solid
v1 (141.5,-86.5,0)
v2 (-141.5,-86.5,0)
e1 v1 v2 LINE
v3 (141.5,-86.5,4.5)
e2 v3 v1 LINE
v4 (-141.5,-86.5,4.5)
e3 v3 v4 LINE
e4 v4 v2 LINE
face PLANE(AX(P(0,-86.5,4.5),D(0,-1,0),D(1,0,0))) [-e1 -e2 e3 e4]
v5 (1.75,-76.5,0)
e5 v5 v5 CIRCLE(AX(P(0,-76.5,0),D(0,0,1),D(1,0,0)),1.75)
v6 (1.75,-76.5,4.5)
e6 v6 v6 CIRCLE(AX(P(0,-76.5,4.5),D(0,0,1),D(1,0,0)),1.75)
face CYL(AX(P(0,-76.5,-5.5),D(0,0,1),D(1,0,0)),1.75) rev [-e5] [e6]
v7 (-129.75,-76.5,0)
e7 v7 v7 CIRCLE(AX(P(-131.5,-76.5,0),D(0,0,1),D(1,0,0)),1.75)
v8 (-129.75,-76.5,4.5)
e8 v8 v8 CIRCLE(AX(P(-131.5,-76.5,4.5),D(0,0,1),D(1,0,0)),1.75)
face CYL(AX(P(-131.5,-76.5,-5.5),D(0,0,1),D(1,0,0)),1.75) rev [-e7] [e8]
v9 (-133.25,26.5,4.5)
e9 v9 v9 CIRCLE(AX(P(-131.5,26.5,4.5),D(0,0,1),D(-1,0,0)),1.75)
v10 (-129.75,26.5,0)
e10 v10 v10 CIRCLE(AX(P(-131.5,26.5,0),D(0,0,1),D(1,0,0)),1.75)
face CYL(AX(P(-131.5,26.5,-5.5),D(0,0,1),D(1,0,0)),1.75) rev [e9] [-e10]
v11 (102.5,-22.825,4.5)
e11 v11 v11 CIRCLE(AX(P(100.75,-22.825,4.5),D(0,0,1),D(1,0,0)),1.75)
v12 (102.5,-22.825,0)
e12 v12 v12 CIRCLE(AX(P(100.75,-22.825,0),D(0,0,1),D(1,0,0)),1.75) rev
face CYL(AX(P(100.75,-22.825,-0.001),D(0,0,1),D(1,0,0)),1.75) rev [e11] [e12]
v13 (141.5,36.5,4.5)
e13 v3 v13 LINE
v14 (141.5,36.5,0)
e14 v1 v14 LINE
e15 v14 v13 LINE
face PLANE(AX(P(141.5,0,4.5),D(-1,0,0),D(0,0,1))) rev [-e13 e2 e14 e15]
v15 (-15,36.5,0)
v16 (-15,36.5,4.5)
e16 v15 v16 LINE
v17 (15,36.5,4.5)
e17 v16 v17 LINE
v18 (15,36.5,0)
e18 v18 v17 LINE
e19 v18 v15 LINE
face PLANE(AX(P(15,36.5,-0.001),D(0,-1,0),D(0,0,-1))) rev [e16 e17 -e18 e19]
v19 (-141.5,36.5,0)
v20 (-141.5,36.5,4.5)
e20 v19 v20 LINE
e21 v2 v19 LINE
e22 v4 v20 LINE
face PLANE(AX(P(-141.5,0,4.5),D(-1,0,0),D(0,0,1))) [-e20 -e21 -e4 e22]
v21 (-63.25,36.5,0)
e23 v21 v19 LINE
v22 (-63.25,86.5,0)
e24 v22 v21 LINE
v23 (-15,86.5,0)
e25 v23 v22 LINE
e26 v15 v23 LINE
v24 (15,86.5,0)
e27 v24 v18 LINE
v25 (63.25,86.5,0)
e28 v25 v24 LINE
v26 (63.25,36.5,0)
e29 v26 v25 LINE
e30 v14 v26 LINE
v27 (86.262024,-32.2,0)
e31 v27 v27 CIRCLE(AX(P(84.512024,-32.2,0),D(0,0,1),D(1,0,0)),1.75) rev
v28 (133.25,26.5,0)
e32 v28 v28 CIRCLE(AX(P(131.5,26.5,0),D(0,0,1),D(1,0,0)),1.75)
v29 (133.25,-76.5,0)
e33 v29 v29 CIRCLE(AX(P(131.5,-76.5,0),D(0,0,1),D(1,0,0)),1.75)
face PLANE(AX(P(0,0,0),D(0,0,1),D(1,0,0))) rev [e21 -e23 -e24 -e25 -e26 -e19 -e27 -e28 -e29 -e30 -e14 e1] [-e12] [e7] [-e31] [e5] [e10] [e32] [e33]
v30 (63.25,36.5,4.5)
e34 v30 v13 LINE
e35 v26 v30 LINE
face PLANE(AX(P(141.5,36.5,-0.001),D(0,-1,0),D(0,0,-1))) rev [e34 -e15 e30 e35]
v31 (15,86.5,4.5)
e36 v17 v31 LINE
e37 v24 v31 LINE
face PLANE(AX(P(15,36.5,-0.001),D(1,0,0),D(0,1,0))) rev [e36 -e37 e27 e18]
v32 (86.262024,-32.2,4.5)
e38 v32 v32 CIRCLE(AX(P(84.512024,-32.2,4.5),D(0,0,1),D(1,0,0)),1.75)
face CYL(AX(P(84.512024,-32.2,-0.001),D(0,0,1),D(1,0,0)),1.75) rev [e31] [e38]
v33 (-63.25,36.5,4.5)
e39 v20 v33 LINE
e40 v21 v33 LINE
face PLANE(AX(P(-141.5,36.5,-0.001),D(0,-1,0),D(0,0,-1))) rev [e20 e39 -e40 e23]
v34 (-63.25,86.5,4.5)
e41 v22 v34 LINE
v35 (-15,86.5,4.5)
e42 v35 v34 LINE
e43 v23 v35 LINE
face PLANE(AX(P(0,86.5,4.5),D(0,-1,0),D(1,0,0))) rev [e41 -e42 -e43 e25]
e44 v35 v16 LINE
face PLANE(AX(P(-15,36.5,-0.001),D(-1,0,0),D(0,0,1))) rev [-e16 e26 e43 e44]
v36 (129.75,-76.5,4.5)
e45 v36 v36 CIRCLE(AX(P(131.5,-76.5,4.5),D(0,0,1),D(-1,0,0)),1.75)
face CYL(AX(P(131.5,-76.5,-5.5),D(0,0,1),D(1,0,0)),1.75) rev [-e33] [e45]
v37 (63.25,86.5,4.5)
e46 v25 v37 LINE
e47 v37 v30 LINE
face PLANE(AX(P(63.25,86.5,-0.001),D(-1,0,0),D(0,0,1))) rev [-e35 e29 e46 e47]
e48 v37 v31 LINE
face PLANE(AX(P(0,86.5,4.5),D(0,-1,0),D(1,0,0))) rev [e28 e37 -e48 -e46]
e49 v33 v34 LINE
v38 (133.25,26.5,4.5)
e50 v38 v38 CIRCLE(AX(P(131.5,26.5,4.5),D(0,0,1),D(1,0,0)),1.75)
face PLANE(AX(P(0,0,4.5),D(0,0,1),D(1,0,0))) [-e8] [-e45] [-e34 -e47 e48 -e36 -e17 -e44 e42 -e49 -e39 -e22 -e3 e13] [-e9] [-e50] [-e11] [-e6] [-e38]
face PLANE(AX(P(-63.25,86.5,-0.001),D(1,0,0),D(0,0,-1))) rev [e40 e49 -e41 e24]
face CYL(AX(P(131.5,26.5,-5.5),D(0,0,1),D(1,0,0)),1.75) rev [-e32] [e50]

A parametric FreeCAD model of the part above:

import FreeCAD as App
import Part
import Sketcher
from FreeCAD import Vector
Q = App.Units.Quantity


def add_polygon(sketch, points):
    """Adds a closed chain of lines whose ends are joined by coincident constraints."""
    first, n = sketch.GeometryCount, len(points)
    for a, b in zip(points, points[1:] + points[:1]):
        sketch.addGeometry(Part.LineSegment(App.Vector(*a, 0), App.Vector(*b, 0)), False)
    for i in range(n):
        sketch.addConstraint(Sketcher.Constraint("Coincident", first + i, 2, first + (i + 1) % n, 1))

doc = App.newDocument("Part")
params = doc.addObject("Spreadsheet::Sheet", "Params")
for row, (alias, value) in enumerate([
    ("sketch1_width", "283 mm"),
    ("sketch1_height", "173 mm"),
    ("pad1_length", "4.5 mm"),
    ("sketch2_height", "50 mm"),
    ("sketch2_width", "78.25 mm"),
    ("sketch3_height", "50 mm"),
    ("sketch3_width", "78.25 mm"),
    ("sketch4_width", "30 mm"),
    ("sketch4_height", "50 mm"),
    ("sketch5_diameter", "3.5 mm"),
    ("pocket4_length", "10 mm"),
    ("sketch6_diameter", "3.5 mm"),
    ("sketch7_diameter", "3.5 mm"),
], start=1):
    params.set(f"A{row}", alias)
    params.set(f"B{row}", "=" + value)
    params.setAlias(f"B{row}", alias)

body = doc.addObject("PartDesign::Body", "Body")

# Sketch on XY plane
sketch1 = doc.addObject("Sketcher::SketchObject", "Sketch")
body.addObject(sketch1)
sketch1.AttachmentSupport = (doc.XY_Plane, [""])
sketch1.MapMode = "FlatFace"
add_polygon(sketch1, [(-142, 86), (-142, -86), (142, -86), (142, 86)])  # lines 0-3
sketch1.addConstraint(Sketcher.Constraint("Vertical", 0))
sketch1.addConstraint(Sketcher.Constraint("Horizontal", 1))
sketch1.addConstraint(Sketcher.Constraint("Vertical", 2))
sketch1.addConstraint(Sketcher.Constraint("Horizontal", 3))
sketch1.addConstraint(Sketcher.Constraint("Symmetric", 0, 2, 2, 2, -1, 1))
sketch1.addConstraint(Sketcher.Constraint("DistanceX", 1, 1, 1, 2, Q("283 mm")))
sketch1.addConstraint(Sketcher.Constraint("DistanceY", 0, 2, 0, 1, Q("173 mm")))
sketch1.setExpression("Constraints[9]", "Params.sketch1_width")
sketch1.setExpression("Constraints[10]", "Params.sketch1_height")
pad1 = doc.addObject("PartDesign::Pad", "Pad")
body.addObject(pad1)
pad1.Profile = sketch1
pad1.setExpression("Length", "Params.pad1_length")

# Sketch on XY plane
sketch2 = doc.addObject("Sketcher::SketchObject", "Sketch001")
body.addObject(sketch2)
sketch2.AttachmentSupport = (doc.XY_Plane, [""])
sketch2.MapMode = "FlatFace"
sketch2.AttachmentOffset = App.Placement(Vector(0, 0, 4.5), App.Rotation())
add_polygon(sketch2, [(63, 86), (63, 36), (142, 36), (142, 86)])  # lines 0-3
sketch2.addConstraint(Sketcher.Constraint("Vertical", 0))
sketch2.addConstraint(Sketcher.Constraint("Horizontal", 1))
sketch2.addConstraint(Sketcher.Constraint("Vertical", 2))
sketch2.addConstraint(Sketcher.Constraint("Horizontal", 3))
sketch2.addConstraint(Sketcher.Constraint("DistanceY", 0, 2, 0, 1, Q("50 mm")))
sketch2.addConstraint(Sketcher.Constraint("DistanceX", 1, 1, 1, 2, Q("78.25 mm")))
sketch2.addConstraint(Sketcher.Constraint("DistanceY", -1, 1, 0, 2, Q("36.5 mm")))
sketch2.addConstraint(Sketcher.Constraint("DistanceX", -1, 1, 1, 2, Q("141.5 mm")))
sketch2.setExpression("Constraints[8]", "Params.sketch2_height")
sketch2.setExpression("Constraints[9]", "Params.sketch2_width")
pocket1 = doc.addObject("PartDesign::Pocket", "Pocket")
body.addObject(pocket1)
pocket1.Profile = sketch2
pocket1.Type = "UpToFirst"

# Sketch on XY plane
sketch3 = doc.addObject("Sketcher::SketchObject", "Sketch002")
body.addObject(sketch3)
sketch3.AttachmentSupport = (doc.XY_Plane, [""])
sketch3.MapMode = "FlatFace"
sketch3.AttachmentOffset = App.Placement(Vector(0, 0, 4.5), App.Rotation())
add_polygon(sketch3, [(-142, 86), (-142, 36), (-63, 36), (-63, 86)])  # lines 0-3
sketch3.addConstraint(Sketcher.Constraint("Vertical", 0))
sketch3.addConstraint(Sketcher.Constraint("Horizontal", 1))
sketch3.addConstraint(Sketcher.Constraint("Vertical", 2))
sketch3.addConstraint(Sketcher.Constraint("Horizontal", 3))
sketch3.addConstraint(Sketcher.Constraint("DistanceY", 0, 2, 0, 1, Q("50 mm")))
sketch3.addConstraint(Sketcher.Constraint("DistanceX", 1, 1, 1, 2, Q("78.25 mm")))
sketch3.addConstraint(Sketcher.Constraint("DistanceX", 0, 2, -1, 1, Q("141.5 mm")))
sketch3.addConstraint(Sketcher.Constraint("DistanceY", -1, 1, 0, 2, Q("36.5 mm")))
sketch3.setExpression("Constraints[8]", "Params.sketch3_height")
sketch3.setExpression("Constraints[9]", "Params.sketch3_width")
pocket2 = doc.addObject("PartDesign::Pocket", "Pocket001")
body.addObject(pocket2)
pocket2.Profile = sketch3
pocket2.Type = "UpToFirst"

# Sketch on XY plane
sketch4 = doc.addObject("Sketcher::SketchObject", "Sketch003")
body.addObject(sketch4)
sketch4.AttachmentSupport = (doc.XY_Plane, [""])
sketch4.MapMode = "FlatFace"
sketch4.AttachmentOffset = App.Placement(Vector(0, 0, 4.5), App.Rotation())
add_polygon(sketch4, [(-15, 86), (-15, 36), (15, 36), (15, 86)])  # lines 0-3
sketch4.addConstraint(Sketcher.Constraint("Vertical", 0))
sketch4.addConstraint(Sketcher.Constraint("Horizontal", 1))
sketch4.addConstraint(Sketcher.Constraint("Vertical", 2))
sketch4.addConstraint(Sketcher.Constraint("Horizontal", 3))
sketch4.addConstraint(Sketcher.Constraint("DistanceX", 1, 1, 1, 2, Q("30 mm")))
sketch4.addConstraint(Sketcher.Constraint("DistanceY", 0, 2, 0, 1, Q("50 mm")))
sketch4.addConstraint(Sketcher.Constraint("DistanceX", 0, 2, -1, 1, Q("15 mm")))
sketch4.addConstraint(Sketcher.Constraint("DistanceY", -1, 1, 0, 2, Q("36.5 mm")))
sketch4.setExpression("Constraints[8]", "Params.sketch4_width")
sketch4.setExpression("Constraints[9]", "Params.sketch4_height")
pocket3 = doc.addObject("PartDesign::Pocket", "Pocket002")
body.addObject(pocket3)
pocket3.Profile = sketch4
pocket3.Type = "UpToFirst"

# Sketch on XY plane
sketch5 = doc.addObject("Sketcher::SketchObject", "Sketch004")
body.addObject(sketch5)
sketch5.AttachmentSupport = (doc.XY_Plane, [""])
sketch5.MapMode = "FlatFace"
sketch5.AttachmentOffset = App.Placement(Vector(0, 0, 4.5), App.Rotation())
sketch5.addGeometry(Part.Circle(Vector(-131.5, -76.5, 0), Vector(0, 0, 1), 1.8), False)
sketch5.addGeometry(Part.Circle(Vector(131.5, -76.5, 0), Vector(0, 0, 1), 1.8), False)
sketch5.addGeometry(Part.Circle(Vector(131.5, 26.5, 0), Vector(0, 0, 1), 1.8), False)
sketch5.addGeometry(Part.Circle(Vector(-131.5, 26.5, 0), Vector(0, 0, 1), 1.8), False)
sketch5.addGeometry(Part.Circle(Vector(0, -76.5, 0), Vector(0, 0, 1), 1.8), False)
sketch5.addConstraint(Sketcher.Constraint("Equal", 0, 1))
sketch5.addConstraint(Sketcher.Constraint("Equal", 1, 2))
sketch5.addConstraint(Sketcher.Constraint("Equal", 2, 3))
sketch5.addConstraint(Sketcher.Constraint("Equal", 3, 4))
sketch5.addConstraint(Sketcher.Constraint("Symmetric", 0, 3, 1, 3, -2))
sketch5.addConstraint(Sketcher.Constraint("Symmetric", 2, 3, 3, 3, -2))
sketch5.addConstraint(Sketcher.Constraint("PointOnObject", 4, 3, -2))
sketch5.addConstraint(Sketcher.Constraint("Horizontal", 1, 3, 4, 3))
sketch5.addConstraint(Sketcher.Constraint("Vertical", 1, 3, 2, 3))
sketch5.addConstraint(Sketcher.Constraint("Diameter", 0, Q("3.5 mm")))
sketch5.addConstraint(Sketcher.Constraint("DistanceX", 0, 3, 1, 3, Q("263 mm")))
sketch5.addConstraint(Sketcher.Constraint("DistanceY", 1, 3, 2, 3, Q("103 mm")))
sketch5.addConstraint(Sketcher.Constraint("DistanceY", 0, 3, -1, 1, Q("76.5 mm")))
sketch5.setExpression("Constraints[9]", "Params.sketch5_diameter")
pocket4 = doc.addObject("PartDesign::Pocket", "Pocket003")
body.addObject(pocket4)
pocket4.Profile = sketch5
pocket4.setExpression("Length", "Params.pocket4_length")

# Sketch on XY plane
sketch6 = doc.addObject("Sketcher::SketchObject", "Sketch005")
body.addObject(sketch6)
sketch6.AttachmentSupport = (doc.XY_Plane, [""])
sketch6.MapMode = "FlatFace"
sketch6.AttachmentOffset = App.Placement(Vector(0, 0, 4.5), App.Rotation())
sketch6.addGeometry(Part.Circle(Vector(84.5, -32.2, 0), Vector(0, 0, 1), 1.8), False)
sketch6.addConstraint(Sketcher.Constraint("Diameter", 0, Q("3.5 mm")))
sketch6.addConstraint(Sketcher.Constraint("DistanceY", 0, 3, -1, 1, Q("32.2 mm")))
sketch6.addConstraint(Sketcher.Constraint("DistanceX", -1, 1, 0, 3, Q("84.512024 mm")))
sketch6.setExpression("Constraints[0]", "Params.sketch6_diameter")
pocket5 = doc.addObject("PartDesign::Pocket", "Pocket004")
body.addObject(pocket5)
pocket5.Profile = sketch6
pocket5.Type = "UpToFirst"

# Sketch on XY plane
sketch7 = doc.addObject("Sketcher::SketchObject", "Sketch006")
body.addObject(sketch7)
sketch7.AttachmentSupport = (doc.XY_Plane, [""])
sketch7.MapMode = "FlatFace"
sketch7.AttachmentOffset = App.Placement(Vector(0, 0, 4.5), App.Rotation())
sketch7.addGeometry(Part.Circle(Vector(100.8, -22.8, 0), Vector(0, 0, 1), 1.8), False)
sketch7.addConstraint(Sketcher.Constraint("Diameter", 0, Q("3.5 mm")))
sketch7.addConstraint(Sketcher.Constraint("DistanceX", -1, 1, 0, 3, Q("100.75 mm")))
sketch7.addConstraint(Sketcher.Constraint("DistanceY", 0, 3, -1, 1, Q("22.825 mm")))
sketch7.setExpression("Constraints[0]", "Params.sketch7_diameter")
pocket6 = doc.addObject("PartDesign::Pocket", "Pocket005")
body.addObject(pocket6)
pocket6.Profile = sketch7
pocket6.Type = "UpToFirst"

doc.recompute()
